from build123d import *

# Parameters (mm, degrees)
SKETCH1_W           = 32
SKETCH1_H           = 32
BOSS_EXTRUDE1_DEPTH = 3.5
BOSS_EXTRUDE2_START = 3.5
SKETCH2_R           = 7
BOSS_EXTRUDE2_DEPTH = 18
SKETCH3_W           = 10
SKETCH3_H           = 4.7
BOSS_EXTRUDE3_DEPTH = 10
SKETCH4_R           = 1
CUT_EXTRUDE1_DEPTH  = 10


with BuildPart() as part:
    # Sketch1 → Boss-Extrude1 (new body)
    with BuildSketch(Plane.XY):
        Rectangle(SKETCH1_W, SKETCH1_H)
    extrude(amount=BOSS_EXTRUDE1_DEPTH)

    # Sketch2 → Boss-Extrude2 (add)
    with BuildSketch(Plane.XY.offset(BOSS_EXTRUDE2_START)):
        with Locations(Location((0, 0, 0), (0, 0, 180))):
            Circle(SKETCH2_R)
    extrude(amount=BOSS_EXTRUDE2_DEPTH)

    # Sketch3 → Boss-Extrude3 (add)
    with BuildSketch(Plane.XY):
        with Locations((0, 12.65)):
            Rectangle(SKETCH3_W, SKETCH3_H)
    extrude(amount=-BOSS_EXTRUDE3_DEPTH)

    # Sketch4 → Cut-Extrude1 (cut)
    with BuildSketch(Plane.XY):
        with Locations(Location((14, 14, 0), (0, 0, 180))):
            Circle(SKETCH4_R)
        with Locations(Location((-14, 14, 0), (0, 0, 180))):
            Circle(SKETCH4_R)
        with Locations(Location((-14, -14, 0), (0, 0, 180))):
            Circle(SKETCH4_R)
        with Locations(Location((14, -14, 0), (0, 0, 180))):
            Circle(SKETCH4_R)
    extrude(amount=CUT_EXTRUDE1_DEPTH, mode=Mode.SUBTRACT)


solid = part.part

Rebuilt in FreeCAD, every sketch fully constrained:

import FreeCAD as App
import Part
import Sketcher
Q = App.Units.Quantity


def add_polygon(sketch, points):
    """Adds a closed chain of lines whose ends are joined by coincident constraints."""
    first, n = sketch.GeometryCount, len(points)
    for a, b in zip(points, points[1:] + points[:1]):
        sketch.addGeometry(Part.LineSegment(App.Vector(*a, 0), App.Vector(*b, 0)), False)
    for i in range(n):
        sketch.addConstraint(Sketcher.Constraint("Coincident", first + i, 2, first + (i + 1) % n, 1))

doc = App.newDocument("Part")
body = doc.addObject("PartDesign::Body", "Body")

sketch1 = body.newObject("Sketcher::SketchObject", "Sketch")
sketch1.AttachmentSupport = (doc.getObject("XY_Plane"), [""])
sketch1.MapMode = "FlatFace"
add_polygon(sketch1, [(-16, 16), (-16, -16), (16, -16), (16, 16)])
sketch1.addConstraint([
    Sketcher.Constraint("Vertical", 0),
    Sketcher.Constraint("Horizontal", 1),
    Sketcher.Constraint("Vertical", 2),
    Sketcher.Constraint("Horizontal", 3),
    Sketcher.Constraint("Symmetric", 0, 2, 2, 2, -1, 1),
    Sketcher.Constraint("Equal", 3, 0),
    Sketcher.Constraint("DistanceX", 1, 1, 1, 2, Q("32 mm")),
])
pad1 = body.newObject("PartDesign::Pad", "Pad")
pad1.Profile = sketch1
pad1.Length = 3.5

sketch2 = body.newObject("Sketcher::SketchObject", "Sketch001")
sketch2.AttachmentSupport = (doc.getObject("XY_Plane"), [""])
sketch2.MapMode = "FlatFace"
sketch2.AttachmentOffset = App.Placement(App.Vector(0, 0, 3.5), App.Rotation())
sketch2.addGeometry(Part.Circle(App.Vector(0, 0, 0), App.Vector(0, 0, 1), 7), False)
sketch2.addConstraint([
    Sketcher.Constraint("Coincident", 0, 3, -1, 1),
    Sketcher.Constraint("Diameter", 0, Q("14 mm")),
])
pad2 = body.newObject("PartDesign::Pad", "Pad001")
pad2.Profile = sketch2
pad2.Length = 18

sketch3 = body.newObject("Sketcher::SketchObject", "Sketch002")
sketch3.AttachmentSupport = (doc.getObject("XY_Plane"), [""])
sketch3.MapMode = "FlatFace"
add_polygon(sketch3, [(-5, 15), (-5, 10.3), (5, 10.3), (5, 15)])
sketch3.addConstraint([
    Sketcher.Constraint("Vertical", 0),
    Sketcher.Constraint("Horizontal", 1),
    Sketcher.Constraint("Vertical", 2),
    Sketcher.Constraint("Horizontal", 3),
    Sketcher.Constraint("DistanceX", 1, 1, 1, 2, Q("10 mm")),
    Sketcher.Constraint("DistanceY", 0, 2, 0, 1, Q("4.7 mm")),
    Sketcher.Constraint("DistanceX", 0, 2, -1, 1, Q("5 mm")),
    Sketcher.Constraint("DistanceY", -1, 1, 2, 2, Q("15 mm")),
])
pad3 = body.newObject("PartDesign::Pad", "Pad002")
pad3.Profile = sketch3
pad3.Length = 10
pad3.Reversed = True

sketch4 = body.newObject("Sketcher::SketchObject", "Sketch003")
sketch4.AttachmentSupport = (doc.getObject("XY_Plane"), [""])
sketch4.MapMode = "FlatFace"
sketch4.addGeometry([
    Part.Circle(App.Vector(14, 14, 0), App.Vector(0, 0, 1), 1),
    Part.Circle(App.Vector(-14, 14, 0), App.Vector(0, 0, 1), 1),
    Part.Circle(App.Vector(-14, -14, 0), App.Vector(0, 0, 1), 1),
    Part.Circle(App.Vector(14, -14, 0), App.Vector(0, 0, 1), 1),
], False)
sketch4.addConstraint([
    Sketcher.Constraint("Equal", 0, 1),
    Sketcher.Constraint("Equal", 1, 2),
    Sketcher.Constraint("Equal", 2, 3),
    Sketcher.Constraint("Symmetric", 0, 3, 2, 3, -1, 1),
    Sketcher.Constraint("Symmetric", 1, 3, 3, 3, -1, 1),
    Sketcher.Constraint("Symmetric", 0, 3, 1, 3, -2),
    Sketcher.Constraint("Diameter", 0, Q("2 mm")),
    Sketcher.Constraint("DistanceX", -1, 1, 0, 3, Q("14 mm")),
    Sketcher.Constraint("DistanceY", -1, 1, 0, 3, Q("14 mm")),
])
pocket1 = body.newObject("PartDesign::Pocket", "Pocket")
pocket1.Profile = sketch4
pocket1.Length = 10
pocket1.Reversed = True

doc.recompute()
